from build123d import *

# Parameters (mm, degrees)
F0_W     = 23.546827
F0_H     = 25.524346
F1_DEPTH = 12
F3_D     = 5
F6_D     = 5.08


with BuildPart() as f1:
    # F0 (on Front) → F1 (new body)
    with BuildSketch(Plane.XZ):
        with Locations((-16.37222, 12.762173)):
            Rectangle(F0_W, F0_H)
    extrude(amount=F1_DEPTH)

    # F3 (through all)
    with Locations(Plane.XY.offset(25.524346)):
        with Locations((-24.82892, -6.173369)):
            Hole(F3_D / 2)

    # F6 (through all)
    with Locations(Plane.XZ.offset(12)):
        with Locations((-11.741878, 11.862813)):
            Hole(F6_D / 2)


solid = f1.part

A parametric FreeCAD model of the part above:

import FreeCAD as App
import Part
import Sketcher
Q = App.Units.Quantity

doc = App.newDocument("Part")
body = doc.addObject("PartDesign::Body", "Body")

sketch1 = body.newObject("Sketcher::SketchObject", "Sketch")
sketch1.AttachmentSupport = (doc.getObject("XZ_Plane"), [""])
sketch1.MapMode = "FlatFace"
sketch1.addGeometry(Part.LineSegment(App.Vector(-28, 26, 0), App.Vector(-28, 0, 0)), False)
sketch1.addGeometry(Part.LineSegment(App.Vector(-28, 0, 0), App.Vector(-5, 0, 0)), False)
sketch1.addGeometry(Part.LineSegment(App.Vector(-5, 0, 0), App.Vector(-5, 26, 0)), False)
sketch1.addGeometry(Part.LineSegment(App.Vector(-5, 26, 0), App.Vector(-28, 26, 0)), False)
sketch1.addConstraint(Sketcher.Constraint("Coincident", 0, 2, 1, 1))
sketch1.addConstraint(Sketcher.Constraint("Coincident", 1, 2, 2, 1))
sketch1.addConstraint(Sketcher.Constraint("Coincident", 2, 2, 3, 1))
sketch1.addConstraint(Sketcher.Constraint("Coincident", 3, 2, 0, 1))
sketch1.addConstraint(Sketcher.Constraint("Vertical", 0))
sketch1.addConstraint(Sketcher.Constraint("Horizontal", 1))
sketch1.addConstraint(Sketcher.Constraint("Vertical", 2))
sketch1.addConstraint(Sketcher.Constraint("Horizontal", 3))
sketch1.addConstraint(Sketcher.Constraint("PointOnObject", 0, 2, -1))
sketch1.addConstraint(Sketcher.Constraint("DistanceX", 1, 1, 1, 2, Q("23.546827 mm")))
sketch1.addConstraint(Sketcher.Constraint("DistanceY", 0, 2, 0, 1, Q("25.524346 mm")))
sketch1.addConstraint(Sketcher.Constraint("DistanceX", 0, 2, -1, 1, Q("28.145633 mm")))
pad1 = body.newObject("PartDesign::Pad", "Pad")
pad1.Profile = sketch1
pad1.Length = 12

sketch2 = body.newObject("Sketcher::SketchObject", "Sketch001")
sketch2.AttachmentSupport = (doc.getObject("XY_Plane"), [""])
sketch2.MapMode = "FlatFace"
sketch2.AttachmentOffset = App.Placement(App.Vector(0, 0, 25.524346), App.Rotation())
sketch2.addGeometry(Part.Circle(App.Vector(-24.8, -6.2, 0), App.Vector(0, 0, 1), 2.5), False)
sketch2.addConstraint(Sketcher.Constraint("Diameter", 0, Q("5 mm")))
sketch2.addConstraint(Sketcher.Constraint("DistanceX", 0, 3, -1, 1, Q("24.82892 mm")))
sketch2.addConstraint(Sketcher.Constraint("DistanceY", 0, 3, -1, 1, Q("6.173369 mm")))
doc.recompute()
hole = body.newObject("PartDesign::Hole", "Hole")
hole.Profile = sketch2
hole.ThreadType = "None"
hole.Diameter = 5
hole.DepthType = "ThroughAll"

sketch3 = body.newObject("Sketcher::SketchObject", "Sketch002")
sketch3.AttachmentSupport = (doc.getObject("XZ_Plane"), [""])
sketch3.MapMode = "FlatFace"
sketch3.AttachmentOffset = App.Placement(App.Vector(0, 0, 12), App.Rotation())
sketch3.addGeometry(Part.Circle(App.Vector(-11.7, 11.9, 0), App.Vector(0, 0, 1), 2.5), False)
sketch3.addConstraint(Sketcher.Constraint("Diameter", 0, Q("5.08 mm")))
sketch3.addConstraint(Sketcher.Constraint("DistanceX", 0, 3, -1, 1, Q("11.741878 mm")))
sketch3.addConstraint(Sketcher.Constraint("DistanceY", -1, 1, 0, 3, Q("11.862813 mm")))
doc.recompute()
hole2 = body.newObject("PartDesign::Hole", "Hole001")
hole2.Profile = sketch3
hole2.ThreadType = "None"
hole2.Diameter = 5.08
hole2.DepthType = "ThroughAll"

doc.recompute()
